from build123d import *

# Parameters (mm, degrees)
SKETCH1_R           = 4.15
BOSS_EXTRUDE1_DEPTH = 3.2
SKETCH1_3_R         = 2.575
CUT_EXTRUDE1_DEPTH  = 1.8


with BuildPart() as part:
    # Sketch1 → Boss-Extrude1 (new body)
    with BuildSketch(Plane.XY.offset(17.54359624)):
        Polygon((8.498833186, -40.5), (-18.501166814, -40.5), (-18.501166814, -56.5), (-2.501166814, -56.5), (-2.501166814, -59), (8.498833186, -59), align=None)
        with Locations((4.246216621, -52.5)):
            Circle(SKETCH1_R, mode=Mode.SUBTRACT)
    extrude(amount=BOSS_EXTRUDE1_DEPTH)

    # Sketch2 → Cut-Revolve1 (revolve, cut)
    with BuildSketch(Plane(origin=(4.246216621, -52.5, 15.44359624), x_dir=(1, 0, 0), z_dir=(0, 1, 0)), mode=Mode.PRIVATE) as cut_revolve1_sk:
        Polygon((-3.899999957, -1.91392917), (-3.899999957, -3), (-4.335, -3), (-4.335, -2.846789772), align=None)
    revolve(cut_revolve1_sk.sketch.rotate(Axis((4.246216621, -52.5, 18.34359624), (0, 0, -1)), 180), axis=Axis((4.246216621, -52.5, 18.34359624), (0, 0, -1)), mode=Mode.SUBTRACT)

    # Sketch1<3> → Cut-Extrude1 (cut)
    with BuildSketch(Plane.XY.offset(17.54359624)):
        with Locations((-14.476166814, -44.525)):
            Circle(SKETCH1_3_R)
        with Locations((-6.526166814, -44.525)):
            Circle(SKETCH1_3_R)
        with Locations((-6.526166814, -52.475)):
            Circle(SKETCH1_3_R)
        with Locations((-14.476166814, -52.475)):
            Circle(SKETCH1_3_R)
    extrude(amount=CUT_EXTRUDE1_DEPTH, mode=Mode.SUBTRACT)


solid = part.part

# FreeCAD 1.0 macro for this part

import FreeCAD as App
import Part
import Sketcher
Q = App.Units.Quantity

doc = App.newDocument("Part")
params = doc.addObject("Spreadsheet::Sheet", "Params")
for row, (alias, value) in enumerate([
    ("sketch1_diameter", "8.3 mm"),
    ("sketch1_width", "27 mm"),
    ("sketch1_width2", "16 mm"),
    ("sketch1_height", "2.5 mm"),
    ("pad1_length", "3.2 mm"),
    ("groove_angle", "360 deg"),
    ("sketch3_diameter", "5.15 mm"),
    ("pocket1_length", "1.8 mm"),
], start=1):
    params.set(f"A{row}", alias)
    params.set(f"B{row}", "=" + value)
    params.setAlias(f"B{row}", alias)

body = doc.addObject("PartDesign::Body", "Body")

# Sketch on XY plane
sketch1 = body.newObject("Sketcher::SketchObject", "Sketch")
sketch1.AttachmentSupport = (doc.getObject("XY_Plane"), [""])
sketch1.MapMode = "FlatFace"
sketch1.AttachmentOffset = App.Placement(App.Vector(0, 0, 17.543596), App.Rotation())
sketch1.addGeometry(Part.LineSegment(App.Vector(8.5, -40.5, 0), App.Vector(-18.5, -40.5, 0)), False)
sketch1.addGeometry(Part.LineSegment(App.Vector(-18.5, -40.5, 0), App.Vector(-18.5, -56.5, 0)), False)
sketch1.addGeometry(Part.LineSegment(App.Vector(-18.5, -56.5, 0), App.Vector(-2.5, -56.5, 0)), False)
sketch1.addGeometry(Part.LineSegment(App.Vector(-2.5, -56.5, 0), App.Vector(-2.5, -59, 0)), False)
sketch1.addGeometry(Part.LineSegment(App.Vector(-2.5, -59, 0), App.Vector(8.5, -59, 0)), False)
sketch1.addGeometry(Part.LineSegment(App.Vector(8.5, -59, 0), App.Vector(8.5, -40.5, 0)), False)
sketch1.addGeometry(Part.Circle(App.Vector(4.2, -52.5, 0), App.Vector(0, 0, 1), 4.2), False)
sketch1.addConstraint(Sketcher.Constraint("Coincident", 0, 2, 1, 1))
sketch1.addConstraint(Sketcher.Constraint("Coincident", 1, 2, 2, 1))
sketch1.addConstraint(Sketcher.Constraint("Coincident", 2, 2, 3, 1))
sketch1.addConstraint(Sketcher.Constraint("Coincident", 3, 2, 4, 1))
sketch1.addConstraint(Sketcher.Constraint("Coincident", 4, 2, 5, 1))
sketch1.addConstraint(Sketcher.Constraint("Coincident", 5, 2, 0, 1))
sketch1.addConstraint(Sketcher.Constraint("Horizontal", 0))
sketch1.addConstraint(Sketcher.Constraint("Vertical", 1))
sketch1.addConstraint(Sketcher.Constraint("Horizontal", 2))
sketch1.addConstraint(Sketcher.Constraint("Vertical", 3))
sketch1.addConstraint(Sketcher.Constraint("Horizontal", 4))
sketch1.addConstraint(Sketcher.Constraint("Vertical", 5))
sketch1.addConstraint(Sketcher.Constraint("Equal", 2, 1))
sketch1.addConstraint(Sketcher.Constraint("Diameter", 6, 8.3))
sketch1.addConstraint(Sketcher.Constraint("DistanceX", 0, 2, 0, 1, 27.0))
sketch1.addConstraint(Sketcher.Constraint("DistanceX", 2, 1, 2, 2, 16.0))
sketch1.addConstraint(Sketcher.Constraint("DistanceY", 3, 2, 3, 1, 2.5))
sketch1.addConstraint(Sketcher.Constraint("DistanceY", 3, 2, -1, 1, 59.0))
sketch1.addConstraint(Sketcher.Constraint("DistanceY", 6, 3, 0, 2, 12.0))
sketch1.addConstraint(Sketcher.Constraint("DistanceX", -1, 1, 6, 3, 4.246217))
sketch1.addConstraint(Sketcher.Constraint("DistanceX", 0, 2, -1, 1, 18.501167))
sketch1.setExpression("Constraints[13]", "Params.sketch1_diameter")
sketch1.setExpression("Constraints[14]", "Params.sketch1_width")
sketch1.setExpression("Constraints[15]", "Params.sketch1_width2")
sketch1.setExpression("Constraints[16]", "Params.sketch1_height")
pad1 = body.newObject("PartDesign::Pad", "Pad")
pad1.Profile = sketch1
pad1.setExpression("Length", "Params.pad1_length")

# Sketch on XZ plane
sketch2 = body.newObject("Sketcher::SketchObject", "Sketch001")
sketch2.AttachmentSupport = (doc.getObject("XZ_Plane"), [""])
sketch2.MapMode = "FlatFace"
sketch2.AttachmentOffset = App.Placement(App.Vector(0, 0, 52.5), App.Rotation())
sketch2.addGeometry(Part.LineSegment(App.Vector(0.35, 18.44, 0), App.Vector(0.35, 17.36, 0)), False)
sketch2.addGeometry(Part.LineSegment(App.Vector(0.35, 17.36, 0), App.Vector(-0.09, 18.29, 0)), False)
sketch2.addGeometry(Part.LineSegment(App.Vector(-0.09, 18.29, 0), App.Vector(-0.09, 18.44, 0)), False)
sketch2.addGeometry(Part.LineSegment(App.Vector(-0.09, 18.44, 0), App.Vector(0.35, 18.44, 0)), False)
sketch2.addGeometry(Part.LineSegment(App.Vector(4.25, 18.44, 0), App.Vector(4.25, 17.36, 0)), True)  # axis
sketch2.addConstraint(Sketcher.Constraint("Coincident", 0, 2, 1, 1))
sketch2.addConstraint(Sketcher.Constraint("Coincident", 1, 2, 2, 1))
sketch2.addConstraint(Sketcher.Constraint("Coincident", 2, 2, 3, 1))
sketch2.addConstraint(Sketcher.Constraint("Coincident", 3, 2, 0, 1))
sketch2.addConstraint(Sketcher.Constraint("Vertical", 0))
sketch2.addConstraint(Sketcher.Constraint("Vertical", 2))
sketch2.addConstraint(Sketcher.Constraint("Horizontal", 3))
sketch2.addConstraint(Sketcher.Constraint("Vertical", 4))
sketch2.addConstraint(Sketcher.Constraint("Horizontal", 3, 2, 4, 1))
sketch2.addConstraint(Sketcher.Constraint("Horizontal", 0, 2, 4, 2))
sketch2.addConstraint(Sketcher.Constraint("Angle", 1, Q("115 deg")))
sketch2.addConstraint(Sketcher.Constraint("DistanceX", 3, 2, 4, 1, 3.9))
sketch2.addConstraint(Sketcher.Constraint("DistanceX", 3, 1, 3, 2, 0.435))
sketch2.addConstraint(Sketcher.Constraint("DistanceY", 0, 2, 0, 1, 1.086071))
sketch2.addConstraint(Sketcher.Constraint("DistanceX", -1, 1, 0, 2, 0.346217))
sketch2.addConstraint(Sketcher.Constraint("DistanceY", -1, 1, 0, 2, 17.357525))
groove = body.newObject("PartDesign::Groove", "Groove")
groove.Profile = sketch2
groove.ReferenceAxis = (sketch2, ["Axis0"])
groove.setExpression("Angle", "Params.groove_angle")

# Sketch on XY plane
sketch3 = body.newObject("Sketcher::SketchObject", "Sketch002")
sketch3.AttachmentSupport = (doc.getObject("XY_Plane"), [""])
sketch3.MapMode = "FlatFace"
sketch3.AttachmentOffset = App.Placement(App.Vector(0, 0, 17.543596), App.Rotation())
sketch3.addGeometry(Part.Circle(App.Vector(-14.5, -44.5, 0), App.Vector(0, 0, 1), 2.6), False)
sketch3.addGeometry(Part.Circle(App.Vector(-6.5, -44.5, 0), App.Vector(0, 0, 1), 2.6), False)
sketch3.addGeometry(Part.Circle(App.Vector(-6.5, -52.5, 0), App.Vector(0, 0, 1), 2.6), False)
sketch3.addGeometry(Part.Circle(App.Vector(-14.5, -52.5, 0), App.Vector(0, 0, 1), 2.6), False)
sketch3.addConstraint(Sketcher.Constraint("Equal", 0, 1))
sketch3.addConstraint(Sketcher.Constraint("Equal", 1, 2))
sketch3.addConstraint(Sketcher.Constraint("Equal", 2, 3))
sketch3.addConstraint(Sketcher.Constraint("Horizontal", 0, 3, 1, 3))
sketch3.addConstraint(Sketcher.Constraint("Horizontal", 2, 3, 3, 3))
sketch3.addConstraint(Sketcher.Constraint("Vertical", 1, 3, 2, 3))
sketch3.addConstraint(Sketcher.Constraint("Vertical", 0, 3, 3, 3))
sketch3.addConstraint(Sketcher.Constraint("Diameter", 0, 5.15))
sketch3.addConstraint(Sketcher.Constraint("DistanceX", 0, 3, 1, 3, 7.95))
sketch3.addConstraint(Sketcher.Constraint("DistanceY", 2, 3, 1, 3, 7.95))
sketch3.addConstraint(Sketcher.Constraint("DistanceY", 0, 3, -1, 1, 44.525))
sketch3.addConstraint(Sketcher.Constraint("DistanceX", 0, 3, -1, 1, 14.476167))
sketch3.setExpression("Constraints[7]", "Params.sketch3_diameter")
pocket1 = body.newObject("PartDesign::Pocket", "Pocket")
pocket1.Profile = sketch3
pocket1.setExpression("Length", "Params.pocket1_length")
pocket1.Reversed = True

doc.recompute()
